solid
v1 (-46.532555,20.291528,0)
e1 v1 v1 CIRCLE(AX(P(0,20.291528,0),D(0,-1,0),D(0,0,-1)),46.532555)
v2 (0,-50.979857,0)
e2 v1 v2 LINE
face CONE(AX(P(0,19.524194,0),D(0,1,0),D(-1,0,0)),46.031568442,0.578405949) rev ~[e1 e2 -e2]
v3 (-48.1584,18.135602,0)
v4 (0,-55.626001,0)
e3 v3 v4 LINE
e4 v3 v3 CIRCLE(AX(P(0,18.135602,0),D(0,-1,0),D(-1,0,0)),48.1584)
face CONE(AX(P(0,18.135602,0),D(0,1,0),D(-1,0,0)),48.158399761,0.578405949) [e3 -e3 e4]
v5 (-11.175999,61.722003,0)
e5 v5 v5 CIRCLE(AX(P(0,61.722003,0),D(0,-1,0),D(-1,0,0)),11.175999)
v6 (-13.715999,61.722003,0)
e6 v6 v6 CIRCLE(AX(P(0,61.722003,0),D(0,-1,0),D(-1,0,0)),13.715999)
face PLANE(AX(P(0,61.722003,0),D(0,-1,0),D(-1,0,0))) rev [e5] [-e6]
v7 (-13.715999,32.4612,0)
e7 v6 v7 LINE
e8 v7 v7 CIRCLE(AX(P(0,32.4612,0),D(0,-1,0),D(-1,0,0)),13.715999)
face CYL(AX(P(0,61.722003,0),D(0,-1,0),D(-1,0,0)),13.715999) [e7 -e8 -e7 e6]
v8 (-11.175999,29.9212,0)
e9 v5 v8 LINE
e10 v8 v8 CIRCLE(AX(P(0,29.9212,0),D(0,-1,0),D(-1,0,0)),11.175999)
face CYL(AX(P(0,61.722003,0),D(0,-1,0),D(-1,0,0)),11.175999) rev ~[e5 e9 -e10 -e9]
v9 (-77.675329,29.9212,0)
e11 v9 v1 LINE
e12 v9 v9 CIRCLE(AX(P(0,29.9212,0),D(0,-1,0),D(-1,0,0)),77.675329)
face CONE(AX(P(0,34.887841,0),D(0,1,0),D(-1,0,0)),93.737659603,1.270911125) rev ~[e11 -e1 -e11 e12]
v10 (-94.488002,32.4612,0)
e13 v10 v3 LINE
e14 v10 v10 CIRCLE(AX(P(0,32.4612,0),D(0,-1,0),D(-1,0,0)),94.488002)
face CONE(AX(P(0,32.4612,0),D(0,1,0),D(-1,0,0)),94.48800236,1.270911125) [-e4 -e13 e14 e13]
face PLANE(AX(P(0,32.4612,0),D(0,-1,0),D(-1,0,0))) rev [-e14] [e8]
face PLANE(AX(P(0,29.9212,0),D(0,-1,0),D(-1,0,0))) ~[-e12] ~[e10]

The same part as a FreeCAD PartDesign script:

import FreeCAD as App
import Part
import Sketcher
from FreeCAD import Vector
Q = App.Units.Quantity


def faces_at(feature, points):
    """Names of the faces that lie closest to the given points."""
    faces = feature.Shape.Faces
    near = lambda p: min(range(len(faces)), key=lambda i: faces[i].distToShape(Part.Vertex(*p))[0])
    return sorted({f"Face{near(p) + 1}" for p in points})

doc = App.newDocument("Part")
body = doc.addObject("PartDesign::Body", "Body")

sketch1 = body.newObject("Sketcher::SketchObject", "Sketch")
sketch1.AttachmentSupport = (doc.getObject("XY_Plane"), [""])
sketch1.MapMode = "FlatFace"
sketch1.addGeometry([
    Part.LineSegment(Vector(0, -56, 0), Vector(0, 62, 0)),
    Part.LineSegment(Vector(0, 62, 0), Vector(-14, 62, 0)),
    Part.LineSegment(Vector(-14, 62, 0), Vector(-14, 32, 0)),
    Part.LineSegment(Vector(-14, 32, 0), Vector(-94, 32, 0)),
    Part.LineSegment(Vector(-94, 32, 0), Vector(-48, 18, 0)),
    Part.LineSegment(Vector(-48, 18, 0), Vector(0, -56, 0)),
], False)
sketch1.addConstraint([
    Sketcher.Constraint("Coincident", 0, 2, 1, 1),
    Sketcher.Constraint("Coincident", 1, 2, 2, 1),
    Sketcher.Constraint("Coincident", 2, 2, 3, 1),
    Sketcher.Constraint("Coincident", 3, 2, 4, 1),
    Sketcher.Constraint("Coincident", 4, 2, 5, 1),
    Sketcher.Constraint("Coincident", 5, 2, 0, 1),
    Sketcher.Constraint("Vertical", 0),
    Sketcher.Constraint("Horizontal", 1),
    Sketcher.Constraint("Vertical", 2),
    Sketcher.Constraint("Horizontal", 3),
    Sketcher.Constraint("PointOnObject", 0, 2, -2),
    Sketcher.Constraint("DistanceX", 1, 2, 1, 1, Q("0.54 in")),
    Sketcher.Constraint("DistanceX", 3, 2, 3, 1, Q("3.1800001 in")),
    Sketcher.Constraint("DistanceY", 0, 1, 0, 2, Q("4.6200002 in")),
    Sketcher.Constraint("DistanceY", 2, 2, 2, 1, Q("1.1520001 in")),
    Sketcher.Constraint("DistanceY", -1, 1, 0, 2, Q("2.4300001 in")),
    Sketcher.Constraint("DistanceX", 4, 2, -1, 1, Q("1.896 in")),
    Sketcher.Constraint("DistanceY", -1, 1, 4, 2, Q("0.7140001 in")),
])
revolution = body.newObject("PartDesign::Revolution", "Revolution")
revolution.Profile = sketch1
revolution.ReferenceAxis = (sketch1, ["V_Axis"])
revolution.Angle = 360
doc.recompute()

thickness = body.newObject("PartDesign::Thickness", "Thickness")
thickness.Base = (revolution, faces_at(revolution, [(0, 61.722, 0)]))
thickness.Value = Q("0.1 in")
thickness.Reversed = True
thickness.Join = "Intersection"

doc.recompute()
